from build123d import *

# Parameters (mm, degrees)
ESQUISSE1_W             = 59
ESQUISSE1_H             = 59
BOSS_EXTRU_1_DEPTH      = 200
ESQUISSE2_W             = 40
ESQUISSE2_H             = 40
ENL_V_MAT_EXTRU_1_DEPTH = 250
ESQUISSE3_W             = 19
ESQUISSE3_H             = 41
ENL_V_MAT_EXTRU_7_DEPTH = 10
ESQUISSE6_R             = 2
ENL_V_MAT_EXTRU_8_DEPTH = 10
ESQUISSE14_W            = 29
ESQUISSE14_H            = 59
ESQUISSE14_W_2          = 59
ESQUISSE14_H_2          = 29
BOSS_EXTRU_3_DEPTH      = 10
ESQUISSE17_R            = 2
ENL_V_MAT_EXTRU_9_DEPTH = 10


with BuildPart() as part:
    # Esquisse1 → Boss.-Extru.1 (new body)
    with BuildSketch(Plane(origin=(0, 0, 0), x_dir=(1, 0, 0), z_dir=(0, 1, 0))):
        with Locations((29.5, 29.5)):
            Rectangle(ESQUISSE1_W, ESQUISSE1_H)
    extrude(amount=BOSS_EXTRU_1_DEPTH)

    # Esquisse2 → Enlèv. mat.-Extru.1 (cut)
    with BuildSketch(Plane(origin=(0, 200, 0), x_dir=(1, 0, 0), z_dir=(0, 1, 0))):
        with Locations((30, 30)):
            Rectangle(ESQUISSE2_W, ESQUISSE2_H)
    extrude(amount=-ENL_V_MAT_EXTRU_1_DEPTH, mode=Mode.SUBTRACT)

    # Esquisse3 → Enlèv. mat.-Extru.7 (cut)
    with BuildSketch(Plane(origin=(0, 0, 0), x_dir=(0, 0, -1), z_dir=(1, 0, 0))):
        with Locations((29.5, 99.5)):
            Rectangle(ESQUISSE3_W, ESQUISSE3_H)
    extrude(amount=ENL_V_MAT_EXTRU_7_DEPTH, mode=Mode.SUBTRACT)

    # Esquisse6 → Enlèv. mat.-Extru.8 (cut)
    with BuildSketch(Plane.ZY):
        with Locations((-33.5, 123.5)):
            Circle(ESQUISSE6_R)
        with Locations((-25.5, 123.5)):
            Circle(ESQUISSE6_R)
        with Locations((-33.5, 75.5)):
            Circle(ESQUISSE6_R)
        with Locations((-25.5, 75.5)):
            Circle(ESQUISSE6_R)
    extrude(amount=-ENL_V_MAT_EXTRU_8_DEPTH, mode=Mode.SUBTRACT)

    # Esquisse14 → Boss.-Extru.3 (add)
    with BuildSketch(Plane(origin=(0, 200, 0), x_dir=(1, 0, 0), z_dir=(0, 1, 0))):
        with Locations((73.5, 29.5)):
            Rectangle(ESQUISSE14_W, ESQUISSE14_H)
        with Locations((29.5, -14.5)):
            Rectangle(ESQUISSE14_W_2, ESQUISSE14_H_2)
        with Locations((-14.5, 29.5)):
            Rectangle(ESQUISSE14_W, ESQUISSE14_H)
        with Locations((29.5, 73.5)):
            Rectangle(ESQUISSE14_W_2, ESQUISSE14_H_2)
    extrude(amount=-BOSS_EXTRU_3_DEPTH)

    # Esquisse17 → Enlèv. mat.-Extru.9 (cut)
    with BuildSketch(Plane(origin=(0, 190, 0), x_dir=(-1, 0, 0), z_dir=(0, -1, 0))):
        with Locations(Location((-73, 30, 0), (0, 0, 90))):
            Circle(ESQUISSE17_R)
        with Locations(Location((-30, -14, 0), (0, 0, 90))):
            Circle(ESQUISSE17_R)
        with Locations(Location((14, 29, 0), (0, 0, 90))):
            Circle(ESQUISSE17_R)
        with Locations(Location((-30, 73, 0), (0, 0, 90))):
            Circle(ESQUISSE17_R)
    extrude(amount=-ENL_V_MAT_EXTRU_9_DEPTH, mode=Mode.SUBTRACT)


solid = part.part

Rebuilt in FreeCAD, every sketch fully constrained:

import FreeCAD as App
import Part
import Sketcher
from FreeCAD import Vector
Q = App.Units.Quantity

doc = App.newDocument("Part")
body = doc.addObject("PartDesign::Body", "Body")

sketch1 = body.newObject("Sketcher::SketchObject", "Sketch")
sketch1.AttachmentSupport = (doc.getObject("XZ_Plane"), [""])
sketch1.MapMode = "FlatFace"
sketch1.addGeometry([
    Part.LineSegment(Vector(0, -59, 0), Vector(0, 0, 0)),
    Part.LineSegment(Vector(0, 0, 0), Vector(59, 0, 0)),
    Part.LineSegment(Vector(59, 0, 0), Vector(59, -59, 0)),
    Part.LineSegment(Vector(59, -59, 0), Vector(0, -59, 0)),
], False)
sketch1.addConstraint([
    Sketcher.Constraint("Coincident", 0, 2, 1, 1),
    Sketcher.Constraint("Coincident", 1, 2, 2, 1),
    Sketcher.Constraint("Coincident", 2, 2, 3, 1),
    Sketcher.Constraint("Coincident", 3, 2, 0, 1),
    Sketcher.Constraint("Vertical", 0),
    Sketcher.Constraint("Horizontal", 1),
    Sketcher.Constraint("Vertical", 2),
    Sketcher.Constraint("Horizontal", 3),
    Sketcher.Constraint("Coincident", 0, 2, -1, 1),
    Sketcher.Constraint("Equal", 3, 0),
    Sketcher.Constraint("DistanceX", 1, 1, 1, 2, Q("59 mm")),
])
pad1 = body.newObject("PartDesign::Pad", "Pad")
pad1.Profile = sketch1
pad1.Length = 200
pad1.Reversed = True

sketch2 = body.newObject("Sketcher::SketchObject", "Sketch001")
sketch2.AttachmentSupport = (doc.getObject("XZ_Plane"), [""])
sketch2.MapMode = "FlatFace"
sketch2.AttachmentOffset = App.Placement(Vector(0, 0, -200), App.Rotation())
sketch2.addGeometry([
    Part.LineSegment(Vector(10, -50, 0), Vector(10, -10, 0)),
    Part.LineSegment(Vector(10, -10, 0), Vector(50, -10, 0)),
    Part.LineSegment(Vector(50, -10, 0), Vector(50, -50, 0)),
    Part.LineSegment(Vector(50, -50, 0), Vector(10, -50, 0)),
], False)
sketch2.addConstraint([
    Sketcher.Constraint("Coincident", 0, 2, 1, 1),
    Sketcher.Constraint("Coincident", 1, 2, 2, 1),
    Sketcher.Constraint("Coincident", 2, 2, 3, 1),
    Sketcher.Constraint("Coincident", 3, 2, 0, 1),
    Sketcher.Constraint("Vertical", 0),
    Sketcher.Constraint("Horizontal", 1),
    Sketcher.Constraint("Vertical", 2),
    Sketcher.Constraint("Horizontal", 3),
    Sketcher.Constraint("Equal", 3, 0),
    Sketcher.Constraint("DistanceX", 1, 1, 1, 2, Q("40 mm")),
    Sketcher.Constraint("DistanceX", -1, 1, 0, 2, Q("10 mm")),
    Sketcher.Constraint("DistanceY", 0, 2, -1, 1, Q("10 mm")),
])
pocket1 = body.newObject("PartDesign::Pocket", "Pocket")
pocket1.Profile = sketch2
pocket1.Length = 250
pocket1.Reversed = True

sketch3 = body.newObject("Sketcher::SketchObject", "Sketch002")
sketch3.AttachmentSupport = (doc.getObject("YZ_Plane"), [""])
sketch3.MapMode = "FlatFace"
sketch3.addGeometry([
    Part.LineSegment(Vector(120, -20, 0), Vector(79, -20, 0)),
    Part.LineSegment(Vector(79, -20, 0), Vector(79, -39, 0)),
    Part.LineSegment(Vector(79, -39, 0), Vector(120, -39, 0)),
    Part.LineSegment(Vector(120, -39, 0), Vector(120, -20, 0)),
], False)
sketch3.addConstraint([
    Sketcher.Constraint("Coincident", 0, 2, 1, 1),
    Sketcher.Constraint("Coincident", 1, 2, 2, 1),
    Sketcher.Constraint("Coincident", 2, 2, 3, 1),
    Sketcher.Constraint("Coincident", 3, 2, 0, 1),
    Sketcher.Constraint("Horizontal", 0),
    Sketcher.Constraint("Vertical", 1),
    Sketcher.Constraint("Horizontal", 2),
    Sketcher.Constraint("Vertical", 3),
    Sketcher.Constraint("DistanceX", 0, 2, 0, 1, Q("41 mm")),
    Sketcher.Constraint("DistanceY", 1, 2, 1, 1, Q("19 mm")),
    Sketcher.Constraint("DistanceX", -1, 1, 0, 2, Q("79 mm")),
    Sketcher.Constraint("DistanceY", 0, 2, -1, 1, Q("20 mm")),
])
pocket2 = body.newObject("PartDesign::Pocket", "Pocket001")
pocket2.Profile = sketch3
pocket2.Length = 10
pocket2.Reversed = True

sketch4 = body.newObject("Sketcher::SketchObject", "Sketch003")
sketch4.AttachmentSupport = (doc.getObject("YZ_Plane"), [""])
sketch4.MapMode = "FlatFace"
sketch4.addGeometry([
    Part.Circle(Vector(123.5, -33.5, 0), Vector(0, 0, 1), 2),
    Part.Circle(Vector(123.5, -25.5, 0), Vector(0, 0, 1), 2),
    Part.Circle(Vector(75.5, -33.5, 0), Vector(0, 0, 1), 2),
    Part.Circle(Vector(75.5, -25.5, 0), Vector(0, 0, 1), 2),
], False)
sketch4.addConstraint([
    Sketcher.Constraint("Equal", 0, 1),
    Sketcher.Constraint("Equal", 1, 2),
    Sketcher.Constraint("Equal", 2, 3),
    Sketcher.Constraint("Horizontal", 0, 3, 2, 3),
    Sketcher.Constraint("Horizontal", 1, 3, 3, 3),
    Sketcher.Constraint("Vertical", 0, 3, 1, 3),
    Sketcher.Constraint("Vertical", 2, 3, 3, 3),
    Sketcher.Constraint("Diameter", 0, Q("4 mm")),
    Sketcher.Constraint("DistanceY", 0, 3, 1, 3, Q("8 mm")),
    Sketcher.Constraint("DistanceX", 2, 3, 0, 3, Q("48 mm")),
    Sketcher.Constraint("DistanceX", -1, 1, 0, 3, Q("123.5 mm")),
    Sketcher.Constraint("DistanceY", 0, 3, -1, 1, Q("33.5 mm")),
])
pocket3 = body.newObject("PartDesign::Pocket", "Pocket002")
pocket3.Profile = sketch4
pocket3.Length = 10
pocket3.Reversed = True

sketch5 = body.newObject("Sketcher::SketchObject", "Sketch004")
sketch5.AttachmentSupport = (doc.getObject("XZ_Plane"), [""])
sketch5.MapMode = "FlatFace"
sketch5.AttachmentOffset = App.Placement(Vector(0, 0, -200), App.Rotation())
sketch5.addGeometry([
    Part.LineSegment(Vector(59, -59, 0), Vector(59, 0, 0)),
    Part.LineSegment(Vector(59, 0, 0), Vector(88, 0, 0)),
    Part.LineSegment(Vector(88, 0, 0), Vector(88, -59, 0)),
    Part.LineSegment(Vector(88, -59, 0), Vector(59, -59, 0)),
    Part.LineSegment(Vector(0, 0, 0), Vector(0, 29, 0)),
    Part.LineSegment(Vector(0, 29, 0), Vector(59, 29, 0)),
    Part.LineSegment(Vector(59, 29, 0), Vector(59, 0, 0)),
    Part.LineSegment(Vector(59, 0, 0), Vector(0, 0, 0)),
    Part.LineSegment(Vector(-29, -59, 0), Vector(-29, 0, 0)),
    Part.LineSegment(Vector(-29, 0, 0), Vector(0, 0, 0)),
    Part.LineSegment(Vector(0, 0, 0), Vector(0, -59, 0)),
    Part.LineSegment(Vector(0, -59, 0), Vector(-29, -59, 0)),
    Part.LineSegment(Vector(0, -88, 0), Vector(0, -59, 0)),
    Part.LineSegment(Vector(0, -59, 0), Vector(59, -59, 0)),
    Part.LineSegment(Vector(59, -59, 0), Vector(59, -88, 0)),
    Part.LineSegment(Vector(59, -88, 0), Vector(0, -88, 0)),
], False)
sketch5.addConstraint([
    Sketcher.Constraint("Coincident", 0, 2, 1, 1),
    Sketcher.Constraint("Coincident", 1, 2, 2, 1),
    Sketcher.Constraint("Coincident", 2, 2, 3, 1),
    Sketcher.Constraint("Coincident", 3, 2, 0, 1),
    Sketcher.Constraint("Coincident", 4, 2, 5, 1),
    Sketcher.Constraint("Coincident", 5, 2, 6, 1),
    Sketcher.Constraint("Coincident", 6, 2, 7, 1),
    Sketcher.Constraint("Coincident", 7, 2, 4, 1),
    Sketcher.Constraint("Coincident", 8, 2, 9, 1),
    Sketcher.Constraint("Coincident", 9, 2, 10, 1),
    Sketcher.Constraint("Coincident", 10, 2, 11, 1),
    Sketcher.Constraint("Coincident", 11, 2, 8, 1),
    Sketcher.Constraint("Coincident", 12, 2, 13, 1),
    Sketcher.Constraint("Coincident", 13, 2, 14, 1),
    Sketcher.Constraint("Coincident", 14, 2, 15, 1),
    Sketcher.Constraint("Coincident", 15, 2, 12, 1),
    Sketcher.Constraint("Vertical", 0),
    Sketcher.Constraint("Horizontal", 1),
    Sketcher.Constraint("Vertical", 2),
    Sketcher.Constraint("Horizontal", 3),
    Sketcher.Constraint("Vertical", 4),
    Sketcher.Constraint("Horizontal", 5),
    Sketcher.Constraint("Vertical", 6),
    Sketcher.Constraint("Horizontal", 7),
    Sketcher.Constraint("Vertical", 8),
    Sketcher.Constraint("Horizontal", 9),
    Sketcher.Constraint("Vertical", 10),
    Sketcher.Constraint("Horizontal", 11),
    Sketcher.Constraint("Vertical", 12),
    Sketcher.Constraint("Horizontal", 13),
    Sketcher.Constraint("Vertical", 14),
    Sketcher.Constraint("Horizontal", 15),
    Sketcher.Constraint("Coincident", 7, 2, -1, 1),
    Sketcher.Constraint("Coincident", 9, 2, -1, 1),
    Sketcher.Constraint("Coincident", 6, 2, 0, 2),
    Sketcher.Constraint("Coincident", 12, 2, 10, 2),
    Sketcher.Constraint("Coincident", 13, 2, 3, 2),
    Sketcher.Constraint("Equal", 3, 9),
    Sketcher.Constraint("Equal", 15, 0),
    Sketcher.Constraint("Equal", 11, 4),
    Sketcher.Constraint("Equal", 6, 12),
    Sketcher.Constraint("DistanceX", 1, 1, 1, 2, Q("29 mm")),
    Sketcher.Constraint("DistanceX", 5, 1, 5, 2, Q("59 mm")),
])
pad2 = body.newObject("PartDesign::Pad", "Pad001")
pad2.Profile = sketch5
pad2.Length = 10

sketch6 = body.newObject("Sketcher::SketchObject", "Sketch005")
sketch6.AttachmentSupport = (doc.getObject("XZ_Plane"), [""])
sketch6.MapMode = "FlatFace"
sketch6.AttachmentOffset = App.Placement(Vector(0, 0, -190), App.Rotation())
sketch6.addGeometry([
    Part.Circle(Vector(73, -30, 0), Vector(0, 0, 1), 2),
    Part.Circle(Vector(30, 14, 0), Vector(0, 0, 1), 2),
    Part.Circle(Vector(-14, -29, 0), Vector(0, 0, 1), 2),
    Part.Circle(Vector(30, -73, 0), Vector(0, 0, 1), 2),
], False)
sketch6.addConstraint([
    Sketcher.Constraint("Equal", 0, 1),
    Sketcher.Constraint("Equal", 1, 2),
    Sketcher.Constraint("Equal", 2, 3),
    Sketcher.Constraint("Vertical", 1, 3, 3, 3),
    Sketcher.Constraint("Diameter", 0, Q("4 mm")),
    Sketcher.Constraint("DistanceX", -1, 1, 0, 3, Q("73 mm")),
    Sketcher.Constraint("DistanceY", 0, 3, -1, 1, Q("30 mm")),
    Sketcher.Constraint("DistanceX", -1, 1, 1, 3, Q("30 mm")),
    Sketcher.Constraint("DistanceY", -1, 1, 1, 3, Q("14 mm")),
    Sketcher.Constraint("DistanceX", 2, 3, -1, 1, Q("14 mm")),
    Sketcher.Constraint("DistanceY", 2, 3, -1, 1, Q("29 mm")),
    Sketcher.Constraint("DistanceY", 3, 3, -1, 1, Q("73 mm")),
])
pocket4 = body.newObject("PartDesign::Pocket", "Pocket003")
pocket4.Profile = sketch6
pocket4.Length = 10

doc.recompute()
